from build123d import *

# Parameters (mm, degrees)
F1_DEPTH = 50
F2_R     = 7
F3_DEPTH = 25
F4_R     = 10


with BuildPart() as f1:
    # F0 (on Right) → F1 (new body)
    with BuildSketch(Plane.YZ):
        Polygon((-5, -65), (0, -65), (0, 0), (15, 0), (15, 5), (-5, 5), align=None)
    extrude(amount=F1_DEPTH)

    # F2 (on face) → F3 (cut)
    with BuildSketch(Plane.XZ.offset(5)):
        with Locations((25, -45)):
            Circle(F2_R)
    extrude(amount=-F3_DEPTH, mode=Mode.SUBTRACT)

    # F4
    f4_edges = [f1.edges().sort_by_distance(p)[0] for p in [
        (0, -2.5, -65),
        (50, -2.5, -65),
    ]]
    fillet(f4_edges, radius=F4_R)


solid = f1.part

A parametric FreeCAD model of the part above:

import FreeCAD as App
import Part
import Sketcher
Q = App.Units.Quantity


def edges_at(feature, points):
    """Names of the edges that pass closest to the given points."""
    edges = feature.Shape.Edges
    near = lambda p: min(range(len(edges)), key=lambda i: edges[i].distToShape(Part.Vertex(*p))[0])
    return sorted({f"Edge{near(p) + 1}" for p in points})

doc = App.newDocument("Part")
body = doc.addObject("PartDesign::Body", "Body")

sketch1 = doc.addObject("Sketcher::SketchObject", "Sketch")
body.addObject(sketch1)
sketch1.AttachmentSupport = (doc.YZ_Plane, [""])
sketch1.MapMode = "FlatFace"
sketch1.addGeometry([
    Part.LineSegment(App.Vector(-5, -65, 0), App.Vector(0, -65, 0)),
    Part.LineSegment(App.Vector(0, -65, 0), App.Vector(0, 0, 0)),
    Part.LineSegment(App.Vector(0, 0, 0), App.Vector(15, 0, 0)),
    Part.LineSegment(App.Vector(15, 0, 0), App.Vector(15, 5, 0)),
    Part.LineSegment(App.Vector(15, 5, 0), App.Vector(-5, 5, 0)),
    Part.LineSegment(App.Vector(-5, 5, 0), App.Vector(-5, -65, 0)),
], False)
sketch1.addConstraint([
    Sketcher.Constraint("Coincident", 0, 2, 1, 1),
    Sketcher.Constraint("Coincident", 1, 2, 2, 1),
    Sketcher.Constraint("Coincident", 2, 2, 3, 1),
    Sketcher.Constraint("Coincident", 3, 2, 4, 1),
    Sketcher.Constraint("Coincident", 4, 2, 5, 1),
    Sketcher.Constraint("Coincident", 5, 2, 0, 1),
    Sketcher.Constraint("Horizontal", 0),
    Sketcher.Constraint("Vertical", 1),
    Sketcher.Constraint("Horizontal", 2),
    Sketcher.Constraint("Vertical", 3),
    Sketcher.Constraint("Horizontal", 4),
    Sketcher.Constraint("Vertical", 5),
    Sketcher.Constraint("Coincident", 1, 2, -1, 1),
    Sketcher.Constraint("Equal", 0, 3),
    Sketcher.Constraint("DistanceX", 0, 1, 0, 2, Q("5 mm")),
    Sketcher.Constraint("DistanceX", 2, 1, 2, 2, Q("15 mm")),
    Sketcher.Constraint("DistanceY", 1, 1, 1, 2, Q("65 mm")),
])
pad1 = doc.addObject("PartDesign::Pad", "Pad")
body.addObject(pad1)
pad1.Profile = sketch1
pad1.Length = 50

sketch2 = doc.addObject("Sketcher::SketchObject", "Sketch001")
body.addObject(sketch2)
sketch2.AttachmentSupport = (doc.XZ_Plane, [""])
sketch2.MapMode = "FlatFace"
sketch2.AttachmentOffset = App.Placement(App.Vector(0, 0, 5), App.Rotation())
sketch2.addGeometry(Part.Circle(App.Vector(25, -45, 0), App.Vector(0, 0, 1), 7), False)
sketch2.addConstraint([
    Sketcher.Constraint("Diameter", 0, Q("14 mm")),
    Sketcher.Constraint("DistanceX", -1, 1, 0, 3, Q("25 mm")),
    Sketcher.Constraint("DistanceY", 0, 3, -1, 1, Q("45 mm")),
])
pocket1 = doc.addObject("PartDesign::Pocket", "Pocket")
body.addObject(pocket1)
pocket1.Profile = sketch2
pocket1.Length = 25
doc.recompute()

fillet = doc.addObject("PartDesign::Fillet", "Fillet")
body.addObject(fillet)
fillet.Base = (pocket1, edges_at(pocket1, [(0, -2.5, -65), (50, -2.5, -65)]))
fillet.Radius = 10

doc.recompute()
